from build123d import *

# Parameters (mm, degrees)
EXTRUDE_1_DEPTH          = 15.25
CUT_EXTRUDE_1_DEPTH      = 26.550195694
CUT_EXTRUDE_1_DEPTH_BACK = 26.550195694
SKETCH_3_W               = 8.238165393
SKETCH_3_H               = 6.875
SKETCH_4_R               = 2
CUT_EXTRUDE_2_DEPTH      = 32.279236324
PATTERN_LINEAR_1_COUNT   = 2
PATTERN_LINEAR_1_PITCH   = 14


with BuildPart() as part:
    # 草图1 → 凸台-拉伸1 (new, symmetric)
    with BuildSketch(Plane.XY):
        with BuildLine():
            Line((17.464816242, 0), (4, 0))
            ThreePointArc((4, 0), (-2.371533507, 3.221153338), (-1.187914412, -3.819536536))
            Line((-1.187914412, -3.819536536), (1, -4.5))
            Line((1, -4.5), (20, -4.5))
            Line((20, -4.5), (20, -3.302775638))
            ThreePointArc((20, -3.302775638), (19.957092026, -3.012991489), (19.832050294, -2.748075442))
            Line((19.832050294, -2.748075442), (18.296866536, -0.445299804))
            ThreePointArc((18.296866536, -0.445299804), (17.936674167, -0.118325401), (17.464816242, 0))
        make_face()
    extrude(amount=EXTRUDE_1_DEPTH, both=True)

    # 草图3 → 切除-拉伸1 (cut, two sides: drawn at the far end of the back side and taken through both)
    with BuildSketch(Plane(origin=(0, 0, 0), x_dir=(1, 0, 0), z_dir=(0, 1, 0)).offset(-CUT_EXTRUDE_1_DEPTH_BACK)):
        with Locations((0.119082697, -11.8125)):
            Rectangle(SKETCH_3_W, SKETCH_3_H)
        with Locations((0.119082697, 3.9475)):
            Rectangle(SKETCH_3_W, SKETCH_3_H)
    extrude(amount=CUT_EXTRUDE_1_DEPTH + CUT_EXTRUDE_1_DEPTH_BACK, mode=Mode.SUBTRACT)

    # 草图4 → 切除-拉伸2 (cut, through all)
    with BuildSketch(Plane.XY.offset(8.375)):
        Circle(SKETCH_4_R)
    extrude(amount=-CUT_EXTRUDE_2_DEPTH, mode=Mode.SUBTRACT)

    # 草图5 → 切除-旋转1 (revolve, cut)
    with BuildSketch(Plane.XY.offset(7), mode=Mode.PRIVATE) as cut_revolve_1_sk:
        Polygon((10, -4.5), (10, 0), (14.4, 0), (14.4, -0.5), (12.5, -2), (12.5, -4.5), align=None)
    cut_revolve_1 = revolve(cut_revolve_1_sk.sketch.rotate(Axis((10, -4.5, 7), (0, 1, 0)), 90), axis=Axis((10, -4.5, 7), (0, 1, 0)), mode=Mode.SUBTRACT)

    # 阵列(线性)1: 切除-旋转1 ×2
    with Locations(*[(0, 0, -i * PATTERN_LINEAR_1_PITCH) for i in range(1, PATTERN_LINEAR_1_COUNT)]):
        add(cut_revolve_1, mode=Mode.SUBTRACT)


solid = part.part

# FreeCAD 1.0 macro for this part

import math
import FreeCAD as App
import Part
import Sketcher
from FreeCAD import Vector
Q = App.Units.Quantity

doc = App.newDocument("Part")
body = doc.addObject("PartDesign::Body", "Body")

sketch1 = body.newObject("Sketcher::SketchObject", "Sketch")
sketch1.AttachmentSupport = (doc.getObject("XY_Plane"), [""])
sketch1.MapMode = "FlatFace"
sketch1.addGeometry([
    Part.LineSegment(Vector(17.5, 0, 0), Vector(4, 0, 0)),
    Part.ArcOfCircle(Part.Circle(Vector(0, 0, 0), Vector(0, 0, 1), 4), math.radians(0), math.radians(253)),
    Part.LineSegment(Vector(-1.2, -3.8, 0), Vector(1, -4.5, 0)),
    Part.LineSegment(Vector(1, -4.5, 0), Vector(20, -4.5, 0)),
    Part.LineSegment(Vector(20, -4.5, 0), Vector(20, -3.3, 0)),
    Part.ArcOfCircle(Part.Circle(Vector(19, -3.3, 0), Vector(0, 0, 1), 1), math.radians(0), math.radians(34)),
    Part.LineSegment(Vector(19.8, -2.7, 0), Vector(18.3, -0.4, 0)),
    Part.ArcOfCircle(Part.Circle(Vector(17.5, -1, 0), Vector(0, 0, 1), 1), math.radians(34), math.radians(90)),
], False)
sketch1.addConstraint([
    Sketcher.Constraint("Coincident", 0, 2, 1, 1),
    Sketcher.Constraint("Tangent", 1, 2, 2, 1),
    Sketcher.Constraint("Coincident", 2, 2, 3, 1),
    Sketcher.Constraint("Coincident", 3, 2, 4, 1),
    Sketcher.Constraint("Tangent", 4, 2, 5, 1),
    Sketcher.Constraint("Tangent", 5, 2, 6, 1),
    Sketcher.Constraint("Tangent", 6, 2, 7, 1),
    Sketcher.Constraint("Tangent", 7, 2, 0, 1),
    Sketcher.Constraint("Horizontal", 0),
    Sketcher.Constraint("Horizontal", 3),
    Sketcher.Constraint("Vertical", 4),
    Sketcher.Constraint("Coincident", 1, 3, -1, 1),
    Sketcher.Constraint("Equal", 5, 7),
    Sketcher.Constraint("PointOnObject", 0, 2, -1),
    Sketcher.Constraint("Radius", 1, Q("4 mm")),
    Sketcher.Constraint("Radius", 5, Q("1 mm")),
    Sketcher.Constraint("DistanceX", 3, 1, 3, 2, Q("19 mm")),
    Sketcher.Constraint("DistanceX", -1, 1, 5, 3, Q("19 mm")),
    Sketcher.Constraint("DistanceY", 2, 2, -1, 1, Q("4.5 mm")),
    Sketcher.Constraint("DistanceY", 6, 2, -1, 1, Q("0.4453 mm")),
    Sketcher.Constraint("Distance", 6, Q("2.767592 mm")),
])
pad1 = body.newObject("PartDesign::Pad", "Pad")
pad1.Profile = sketch1
pad1.Length = 30.5
pad1.Midplane = True

sketch2 = body.newObject("Sketcher::SketchObject", "Sketch001")
sketch2.AttachmentSupport = (doc.getObject("XZ_Plane"), [""])
sketch2.MapMode = "FlatFace"
sketch2.addGeometry([
    Part.LineSegment(Vector(-4, 8, 0), Vector(-4, 15, 0)),
    Part.LineSegment(Vector(-4, 15, 0), Vector(4, 15, 0)),
    Part.LineSegment(Vector(4, 15, 0), Vector(4, 8, 0)),
    Part.LineSegment(Vector(4, 8, 0), Vector(-4, 8, 0)),
    Part.LineSegment(Vector(-4, -7, 0), Vector(-4, -1, 0)),
    Part.LineSegment(Vector(-4, -1, 0), Vector(4, -1, 0)),
    Part.LineSegment(Vector(4, -1, 0), Vector(4, -7, 0)),
    Part.LineSegment(Vector(4, -7, 0), Vector(-4, -7, 0)),
], False)
sketch2.addConstraint([
    Sketcher.Constraint("Coincident", 0, 2, 1, 1),
    Sketcher.Constraint("Coincident", 1, 2, 2, 1),
    Sketcher.Constraint("Coincident", 2, 2, 3, 1),
    Sketcher.Constraint("Coincident", 3, 2, 0, 1),
    Sketcher.Constraint("Coincident", 4, 2, 5, 1),
    Sketcher.Constraint("Coincident", 5, 2, 6, 1),
    Sketcher.Constraint("Coincident", 6, 2, 7, 1),
    Sketcher.Constraint("Coincident", 7, 2, 4, 1),
    Sketcher.Constraint("Vertical", 0),
    Sketcher.Constraint("Horizontal", 1),
    Sketcher.Constraint("Vertical", 2),
    Sketcher.Constraint("Horizontal", 3),
    Sketcher.Constraint("Vertical", 4),
    Sketcher.Constraint("Horizontal", 5),
    Sketcher.Constraint("Vertical", 6),
    Sketcher.Constraint("Horizontal", 7),
    Sketcher.Constraint("Vertical", 3, 2, 4, 2),
    Sketcher.Constraint("Vertical", 2, 2, 5, 2),
    Sketcher.Constraint("Equal", 2, 4),
    Sketcher.Constraint("DistanceX", 0, 2, -1, 1, Q("4 mm")),
    Sketcher.Constraint("DistanceY", 0, 1, 0, 2, Q("6.875 mm")),
    Sketcher.Constraint("DistanceY", -1, 1, 0, 2, Q("15.25 mm")),
    Sketcher.Constraint("DistanceY", 4, 2, -1, 1, Q("0.51 mm")),
    Sketcher.Constraint("DistanceX", 1, 1, 1, 2, Q("8.238165 mm")),
])
pocket1 = body.newObject("PartDesign::Pocket", "Pocket")
pocket1.Profile = sketch2
pocket1.Type = "ThroughAll"
pocket1.Midplane = True

sketch3 = body.newObject("Sketcher::SketchObject", "Sketch002")
sketch3.AttachmentSupport = (doc.getObject("XY_Plane"), [""])
sketch3.MapMode = "FlatFace"
sketch3.AttachmentOffset = App.Placement(Vector(0, 0, 8.375), App.Rotation())
sketch3.addGeometry(Part.Circle(Vector(0, 0, 0), Vector(0, 0, 1), 2), False)
sketch3.addConstraint([
    Sketcher.Constraint("Coincident", 0, 3, -1, 1),
    Sketcher.Constraint("Diameter", 0, Q("4 mm")),
])
pocket2 = body.newObject("PartDesign::Pocket", "Pocket001")
pocket2.Profile = sketch3
pocket2.Type = "ThroughAll"

sketch4 = body.newObject("Sketcher::SketchObject", "Sketch003")
sketch4.AttachmentSupport = (doc.getObject("XY_Plane"), [""])
sketch4.MapMode = "FlatFace"
sketch4.AttachmentOffset = App.Placement(Vector(0, 0, 7), App.Rotation())
sketch4.addGeometry([
    Part.LineSegment(Vector(10, 0, 0), Vector(10, -4.5, 0)),
    Part.LineSegment(Vector(10, -4.5, 0), Vector(12.5, -4.5, 0)),
    Part.LineSegment(Vector(12.5, -4.5, 0), Vector(12.5, -2, 0)),
    Part.LineSegment(Vector(12.5, -2, 0), Vector(14.4, -0.5, 0)),
    Part.LineSegment(Vector(14.4, -0.5, 0), Vector(14.4, 0, 0)),
    Part.LineSegment(Vector(14.4, 0, 0), Vector(10, 0, 0)),
], False)
sketch4.addGeometry(Part.LineSegment(Vector(10, -4.5, 0), Vector(10, 0, 0)), True)
sketch4.addConstraint([
    Sketcher.Constraint("Coincident", 0, 2, 1, 1),
    Sketcher.Constraint("Coincident", 1, 2, 2, 1),
    Sketcher.Constraint("Coincident", 2, 2, 3, 1),
    Sketcher.Constraint("Coincident", 3, 2, 4, 1),
    Sketcher.Constraint("Coincident", 4, 2, 5, 1),
    Sketcher.Constraint("Coincident", 5, 2, 0, 1),
    Sketcher.Constraint("Vertical", 0),
    Sketcher.Constraint("Horizontal", 1),
    Sketcher.Constraint("Vertical", 2),
    Sketcher.Constraint("Vertical", 4),
    Sketcher.Constraint("Horizontal", 5),
    Sketcher.Constraint("Vertical", 6),
    Sketcher.Constraint("Coincident", 6, 1, 0, 2),
    Sketcher.Constraint("PointOnObject", 4, 2, -1),
    Sketcher.Constraint("PointOnObject", 6, 2, -1),
    Sketcher.Constraint("Equal", 1, 2),
    Sketcher.Constraint("DistanceX", 1, 1, 1, 2, Q("2.5 mm")),
    Sketcher.Constraint("DistanceX", 5, 2, 5, 1, Q("4.4 mm")),
    Sketcher.Constraint("DistanceY", 0, 2, 0, 1, Q("4.5 mm")),
    Sketcher.Constraint("DistanceY", 4, 1, 4, 2, Q("0.5 mm")),
    Sketcher.Constraint("DistanceX", -1, 1, 0, 2, Q("10 mm")),
])
groove = body.newObject("PartDesign::Groove", "Groove")
groove.Profile = sketch4
groove.ReferenceAxis = (sketch4, ["Axis0"])
groove.Angle = 360
doc.recompute()

linearpattern = body.newObject("PartDesign::LinearPattern", "LinearPattern")
linearpattern.Originals = [groove]
linearpattern.Direction = (doc.getObject("Z_Axis"), [""])
linearpattern.Mode = "offset"
linearpattern.Offset = 14
linearpattern.Occurrences = 2
linearpattern.Reversed = True
body.Tip = linearpattern

doc.recompute()
